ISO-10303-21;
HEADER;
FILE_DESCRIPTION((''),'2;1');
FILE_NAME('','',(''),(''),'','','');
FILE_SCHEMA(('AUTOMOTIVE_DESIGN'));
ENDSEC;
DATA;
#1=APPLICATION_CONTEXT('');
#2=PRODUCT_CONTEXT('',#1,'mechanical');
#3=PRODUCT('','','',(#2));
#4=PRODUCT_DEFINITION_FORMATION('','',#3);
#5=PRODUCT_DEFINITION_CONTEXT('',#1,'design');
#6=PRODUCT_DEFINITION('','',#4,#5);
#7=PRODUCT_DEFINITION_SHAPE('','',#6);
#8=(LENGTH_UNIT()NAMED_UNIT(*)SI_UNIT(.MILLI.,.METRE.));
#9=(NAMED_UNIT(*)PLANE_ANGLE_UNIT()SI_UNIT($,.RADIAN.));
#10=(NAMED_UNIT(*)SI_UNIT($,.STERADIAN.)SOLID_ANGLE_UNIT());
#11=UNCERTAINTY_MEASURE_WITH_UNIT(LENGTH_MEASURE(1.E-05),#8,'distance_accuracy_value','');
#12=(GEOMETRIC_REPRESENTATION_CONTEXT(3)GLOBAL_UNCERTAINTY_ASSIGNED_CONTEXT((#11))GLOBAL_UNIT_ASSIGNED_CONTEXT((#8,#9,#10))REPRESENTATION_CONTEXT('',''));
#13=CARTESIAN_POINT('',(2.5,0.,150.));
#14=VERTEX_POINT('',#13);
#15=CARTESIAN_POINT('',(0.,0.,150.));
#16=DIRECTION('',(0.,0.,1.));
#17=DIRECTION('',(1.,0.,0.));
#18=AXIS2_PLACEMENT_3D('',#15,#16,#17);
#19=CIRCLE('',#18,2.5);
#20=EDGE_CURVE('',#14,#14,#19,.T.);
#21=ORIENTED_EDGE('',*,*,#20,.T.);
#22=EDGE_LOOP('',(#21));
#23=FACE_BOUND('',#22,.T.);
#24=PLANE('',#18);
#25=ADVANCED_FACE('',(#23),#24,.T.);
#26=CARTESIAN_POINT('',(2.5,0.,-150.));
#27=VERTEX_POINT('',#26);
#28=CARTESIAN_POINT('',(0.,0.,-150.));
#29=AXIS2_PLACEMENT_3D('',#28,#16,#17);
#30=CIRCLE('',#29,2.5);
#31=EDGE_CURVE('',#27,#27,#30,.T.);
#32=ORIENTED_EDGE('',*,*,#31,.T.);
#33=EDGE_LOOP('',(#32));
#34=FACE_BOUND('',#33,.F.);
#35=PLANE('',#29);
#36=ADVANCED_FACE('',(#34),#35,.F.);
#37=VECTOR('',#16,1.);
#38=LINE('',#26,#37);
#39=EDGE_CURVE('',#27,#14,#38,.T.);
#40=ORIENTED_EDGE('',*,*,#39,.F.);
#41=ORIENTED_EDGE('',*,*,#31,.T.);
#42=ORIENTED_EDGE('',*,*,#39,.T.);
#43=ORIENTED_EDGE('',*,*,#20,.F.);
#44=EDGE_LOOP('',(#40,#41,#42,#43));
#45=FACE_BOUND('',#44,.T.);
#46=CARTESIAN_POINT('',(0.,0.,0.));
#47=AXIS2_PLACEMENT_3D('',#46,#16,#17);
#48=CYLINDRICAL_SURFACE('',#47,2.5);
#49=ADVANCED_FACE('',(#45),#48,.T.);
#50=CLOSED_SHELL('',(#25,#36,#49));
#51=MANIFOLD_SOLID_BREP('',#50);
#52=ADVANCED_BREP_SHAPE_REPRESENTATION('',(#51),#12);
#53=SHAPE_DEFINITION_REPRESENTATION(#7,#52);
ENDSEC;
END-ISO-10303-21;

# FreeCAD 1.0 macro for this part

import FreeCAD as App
import Part
import Sketcher

V = App.Vector

doc = App.newDocument("Part")
body = doc.addObject("PartDesign::Body", "Body")

# Sketch on XY plane
sketch1 = body.newObject("Sketcher::SketchObject", "Sketch")
sketch1.AttachmentSupport = (doc.getObject("XY_Plane"), [""])
sketch1.MapMode = "FlatFace"
sketch1.addGeometry(Part.Circle(V(0, 0, 0), V(0, 0, 1), 2.5), False)
sketch1.addConstraint(Sketcher.Constraint("Coincident", 0, 3, -1, 1))
sketch1.addConstraint(Sketcher.Constraint("Diameter", 0, 5.0))
pad1 = body.newObject("PartDesign::Pad", "Pad")
pad1.Profile = sketch1
pad1.Length = 300
pad1.Midplane = True

doc.recompute()
